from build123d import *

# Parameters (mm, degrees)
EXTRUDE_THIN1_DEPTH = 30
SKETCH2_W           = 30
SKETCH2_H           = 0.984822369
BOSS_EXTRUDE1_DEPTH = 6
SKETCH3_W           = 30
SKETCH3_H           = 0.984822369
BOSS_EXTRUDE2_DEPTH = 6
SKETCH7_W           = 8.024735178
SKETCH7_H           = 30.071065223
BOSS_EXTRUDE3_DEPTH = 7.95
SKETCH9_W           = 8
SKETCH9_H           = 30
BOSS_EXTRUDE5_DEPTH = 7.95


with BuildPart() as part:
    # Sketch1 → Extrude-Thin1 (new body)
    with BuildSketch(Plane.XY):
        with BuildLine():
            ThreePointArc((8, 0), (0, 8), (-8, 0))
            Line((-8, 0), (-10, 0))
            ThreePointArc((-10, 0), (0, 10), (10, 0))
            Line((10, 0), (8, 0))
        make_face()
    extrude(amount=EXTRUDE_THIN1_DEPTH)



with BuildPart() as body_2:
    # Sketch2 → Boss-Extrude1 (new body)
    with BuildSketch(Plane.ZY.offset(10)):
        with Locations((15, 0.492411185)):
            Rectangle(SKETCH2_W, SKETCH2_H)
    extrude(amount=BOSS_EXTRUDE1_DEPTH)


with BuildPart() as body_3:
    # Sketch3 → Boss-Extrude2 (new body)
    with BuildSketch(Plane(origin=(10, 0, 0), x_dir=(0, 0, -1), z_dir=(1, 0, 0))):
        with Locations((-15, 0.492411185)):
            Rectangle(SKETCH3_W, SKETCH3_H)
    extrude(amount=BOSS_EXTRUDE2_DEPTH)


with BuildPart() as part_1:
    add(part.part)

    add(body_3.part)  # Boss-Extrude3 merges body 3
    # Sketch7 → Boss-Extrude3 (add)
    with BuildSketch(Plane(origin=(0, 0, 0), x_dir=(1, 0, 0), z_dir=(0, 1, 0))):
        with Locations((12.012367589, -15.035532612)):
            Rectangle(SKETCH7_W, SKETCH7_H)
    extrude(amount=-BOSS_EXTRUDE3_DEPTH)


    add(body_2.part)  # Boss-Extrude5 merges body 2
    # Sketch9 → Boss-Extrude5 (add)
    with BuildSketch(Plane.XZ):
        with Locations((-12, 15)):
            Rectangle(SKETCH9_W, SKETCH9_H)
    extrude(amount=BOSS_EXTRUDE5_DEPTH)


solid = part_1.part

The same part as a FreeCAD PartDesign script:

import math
import FreeCAD as App
import Part
import Sketcher

doc = App.newDocument("Part")
body = doc.addObject("PartDesign::Body", "Body")

sketch1 = doc.addObject("Sketcher::SketchObject", "Sketch")
body.addObject(sketch1)
sketch1.AttachmentSupport = (doc.XY_Plane, [""])
sketch1.MapMode = "FlatFace"
sketch1.addGeometry([
    Part.ArcOfCircle(Part.Circle(App.Vector(0, 0, 0), App.Vector(0, 0, 1), 8), math.radians(0), math.radians(180)),
    Part.LineSegment(App.Vector(8, 0, 0), App.Vector(10, 0, 0)),
    Part.ArcOfCircle(Part.Circle(App.Vector(0, 0, 0), App.Vector(0, 0, 1), 10), math.radians(0), math.radians(180)),
    Part.LineSegment(App.Vector(-10, 0, 0), App.Vector(-8, 0, 0)),
], False)
sketch1.addConstraint([
    Sketcher.Constraint("Coincident", 0, 1, 1, 1),
    Sketcher.Constraint("Coincident", 1, 2, 2, 1),
    Sketcher.Constraint("Coincident", 2, 2, 3, 1),
    Sketcher.Constraint("Coincident", 3, 2, 0, 2),
    Sketcher.Constraint("Horizontal", 1),
    Sketcher.Constraint("Horizontal", 3),
    Sketcher.Constraint("Coincident", 0, 3, -1, 1),
    Sketcher.Constraint("Coincident", 2, 3, -1, 1),
    Sketcher.Constraint("PointOnObject", 0, 1, -1),
    Sketcher.Constraint("PointOnObject", 2, 2, -1),
    Sketcher.Constraint("Radius", 0, 8.0),
    Sketcher.Constraint("Radius", 2, 10.0),
])
pad1 = doc.addObject("PartDesign::Pad", "Pad")
body.addObject(pad1)
pad1.Profile = sketch1
pad1.Length = 30
body2 = doc.addObject("PartDesign::Body", "Body001")

sketch2 = doc.addObject("Sketcher::SketchObject", "Sketch001")
body2.addObject(sketch2)
sketch2.AttachmentSupport = (doc.getObject("YZ_Plane001"), [""])
sketch2.MapMode = "FlatFace"
sketch2.AttachmentOffset = App.Placement(App.Vector(0, 0, -10), App.Rotation())
sketch2.addGeometry([
    Part.LineSegment(App.Vector(1, 0, 0), App.Vector(0, 0, 0)),
    Part.LineSegment(App.Vector(0, 0, 0), App.Vector(0, 30, 0)),
    Part.LineSegment(App.Vector(0, 30, 0), App.Vector(1, 30, 0)),
    Part.LineSegment(App.Vector(1, 30, 0), App.Vector(1, 0, 0)),
], False)
sketch2.addConstraint([
    Sketcher.Constraint("Coincident", 0, 2, 1, 1),
    Sketcher.Constraint("Coincident", 1, 2, 2, 1),
    Sketcher.Constraint("Coincident", 2, 2, 3, 1),
    Sketcher.Constraint("Coincident", 3, 2, 0, 1),
    Sketcher.Constraint("Horizontal", 0),
    Sketcher.Constraint("Vertical", 1),
    Sketcher.Constraint("Horizontal", 2),
    Sketcher.Constraint("Vertical", 3),
    Sketcher.Constraint("Coincident", 0, 2, -1, 1),
    Sketcher.Constraint("DistanceY", 1, 1, 1, 2, 30.0),
    Sketcher.Constraint("DistanceX", 0, 2, 0, 1, 0.984822),
])
pad2 = doc.addObject("PartDesign::Pad", "Pad001")
body2.addObject(pad2)
pad2.Profile = sketch2
pad2.Length = 6
pad2.Reversed = True
body3 = doc.addObject("PartDesign::Body", "Body002")

sketch3 = doc.addObject("Sketcher::SketchObject", "Sketch002")
body3.addObject(sketch3)
sketch3.AttachmentSupport = (doc.getObject("YZ_Plane002"), [""])
sketch3.MapMode = "FlatFace"
sketch3.AttachmentOffset = App.Placement(App.Vector(0, 0, 10), App.Rotation())
sketch3.addGeometry([
    Part.LineSegment(App.Vector(1, 30, 0), App.Vector(0, 30, 0)),
    Part.LineSegment(App.Vector(0, 30, 0), App.Vector(0, 0, 0)),
    Part.LineSegment(App.Vector(0, 0, 0), App.Vector(1, 0, 0)),
    Part.LineSegment(App.Vector(1, 0, 0), App.Vector(1, 30, 0)),
], False)
sketch3.addConstraint([
    Sketcher.Constraint("Coincident", 0, 2, 1, 1),
    Sketcher.Constraint("Coincident", 1, 2, 2, 1),
    Sketcher.Constraint("Coincident", 2, 2, 3, 1),
    Sketcher.Constraint("Coincident", 3, 2, 0, 1),
    Sketcher.Constraint("Horizontal", 0),
    Sketcher.Constraint("Vertical", 1),
    Sketcher.Constraint("Horizontal", 2),
    Sketcher.Constraint("Vertical", 3),
    Sketcher.Constraint("Coincident", 1, 2, -1, 1),
    Sketcher.Constraint("DistanceY", 1, 2, 1, 1, 30.0),
    Sketcher.Constraint("DistanceX", 0, 2, 0, 1, 0.984822),
])
pad3 = doc.addObject("PartDesign::Pad", "Pad002")
body3.addObject(pad3)
pad3.Profile = sketch3
pad3.Length = 6
body.AllowCompound = True
doc.recompute()

boolean = doc.addObject("PartDesign::Boolean", "Boolean")
body.addObject(boolean)
boolean.Type = "Fuse"
boolean.addObjects([body3])

sketch4 = doc.addObject("Sketcher::SketchObject", "Sketch003")
body.addObject(sketch4)
sketch4.AttachmentSupport = (doc.XZ_Plane, [""])
sketch4.MapMode = "FlatFace"
sketch4.addGeometry([
    Part.LineSegment(App.Vector(8, 0, 0), App.Vector(8, 30, 0)),
    Part.LineSegment(App.Vector(8, 30, 0), App.Vector(16, 30, 0)),
    Part.LineSegment(App.Vector(16, 30, 0), App.Vector(16, 0, 0)),
    Part.LineSegment(App.Vector(16, 0, 0), App.Vector(8, 0, 0)),
], False)
sketch4.addConstraint([
    Sketcher.Constraint("Coincident", 0, 2, 1, 1),
    Sketcher.Constraint("Coincident", 1, 2, 2, 1),
    Sketcher.Constraint("Coincident", 2, 2, 3, 1),
    Sketcher.Constraint("Coincident", 3, 2, 0, 1),
    Sketcher.Constraint("Vertical", 0),
    Sketcher.Constraint("Horizontal", 1),
    Sketcher.Constraint("Vertical", 2),
    Sketcher.Constraint("Horizontal", 3),
    Sketcher.Constraint("PointOnObject", 2, 2, -1),
    Sketcher.Constraint("DistanceX", -1, 1, 0, 2, 8.0),
    Sketcher.Constraint("DistanceX", 1, 1, 1, 2, 8.024735),
    Sketcher.Constraint("DistanceY", 0, 1, 0, 2, 30.071065),
])
pad4 = doc.addObject("PartDesign::Pad", "Pad003")
body.addObject(pad4)
pad4.Profile = sketch4
pad4.Length = 7.95
doc.recompute()

boolean2 = doc.addObject("PartDesign::Boolean", "Boolean001")
body.addObject(boolean2)
boolean2.Type = "Fuse"
boolean2.addObjects([body2])

sketch5 = doc.addObject("Sketcher::SketchObject", "Sketch004")
body.addObject(sketch5)
sketch5.AttachmentSupport = (doc.XZ_Plane, [""])
sketch5.MapMode = "FlatFace"
sketch5.addGeometry([
    Part.LineSegment(App.Vector(-16, 30, 0), App.Vector(-16, 0, 0)),
    Part.LineSegment(App.Vector(-16, 0, 0), App.Vector(-8, 0, 0)),
    Part.LineSegment(App.Vector(-8, 0, 0), App.Vector(-8, 30, 0)),
    Part.LineSegment(App.Vector(-8, 30, 0), App.Vector(-16, 30, 0)),
], False)
sketch5.addConstraint([
    Sketcher.Constraint("Coincident", 0, 2, 1, 1),
    Sketcher.Constraint("Coincident", 1, 2, 2, 1),
    Sketcher.Constraint("Coincident", 2, 2, 3, 1),
    Sketcher.Constraint("Coincident", 3, 2, 0, 1),
    Sketcher.Constraint("Vertical", 0),
    Sketcher.Constraint("Horizontal", 1),
    Sketcher.Constraint("Vertical", 2),
    Sketcher.Constraint("Horizontal", 3),
    Sketcher.Constraint("PointOnObject", 0, 2, -1),
    Sketcher.Constraint("DistanceX", 1, 1, 1, 2, 8.0),
    Sketcher.Constraint("DistanceY", 0, 2, 0, 1, 30.0),
    Sketcher.Constraint("DistanceX", 0, 2, -1, 1, 16.0),
])
pad5 = doc.addObject("PartDesign::Pad", "Pad004")
body.addObject(pad5)
pad5.Profile = sketch5
pad5.Length = 7.95

doc.recompute()
